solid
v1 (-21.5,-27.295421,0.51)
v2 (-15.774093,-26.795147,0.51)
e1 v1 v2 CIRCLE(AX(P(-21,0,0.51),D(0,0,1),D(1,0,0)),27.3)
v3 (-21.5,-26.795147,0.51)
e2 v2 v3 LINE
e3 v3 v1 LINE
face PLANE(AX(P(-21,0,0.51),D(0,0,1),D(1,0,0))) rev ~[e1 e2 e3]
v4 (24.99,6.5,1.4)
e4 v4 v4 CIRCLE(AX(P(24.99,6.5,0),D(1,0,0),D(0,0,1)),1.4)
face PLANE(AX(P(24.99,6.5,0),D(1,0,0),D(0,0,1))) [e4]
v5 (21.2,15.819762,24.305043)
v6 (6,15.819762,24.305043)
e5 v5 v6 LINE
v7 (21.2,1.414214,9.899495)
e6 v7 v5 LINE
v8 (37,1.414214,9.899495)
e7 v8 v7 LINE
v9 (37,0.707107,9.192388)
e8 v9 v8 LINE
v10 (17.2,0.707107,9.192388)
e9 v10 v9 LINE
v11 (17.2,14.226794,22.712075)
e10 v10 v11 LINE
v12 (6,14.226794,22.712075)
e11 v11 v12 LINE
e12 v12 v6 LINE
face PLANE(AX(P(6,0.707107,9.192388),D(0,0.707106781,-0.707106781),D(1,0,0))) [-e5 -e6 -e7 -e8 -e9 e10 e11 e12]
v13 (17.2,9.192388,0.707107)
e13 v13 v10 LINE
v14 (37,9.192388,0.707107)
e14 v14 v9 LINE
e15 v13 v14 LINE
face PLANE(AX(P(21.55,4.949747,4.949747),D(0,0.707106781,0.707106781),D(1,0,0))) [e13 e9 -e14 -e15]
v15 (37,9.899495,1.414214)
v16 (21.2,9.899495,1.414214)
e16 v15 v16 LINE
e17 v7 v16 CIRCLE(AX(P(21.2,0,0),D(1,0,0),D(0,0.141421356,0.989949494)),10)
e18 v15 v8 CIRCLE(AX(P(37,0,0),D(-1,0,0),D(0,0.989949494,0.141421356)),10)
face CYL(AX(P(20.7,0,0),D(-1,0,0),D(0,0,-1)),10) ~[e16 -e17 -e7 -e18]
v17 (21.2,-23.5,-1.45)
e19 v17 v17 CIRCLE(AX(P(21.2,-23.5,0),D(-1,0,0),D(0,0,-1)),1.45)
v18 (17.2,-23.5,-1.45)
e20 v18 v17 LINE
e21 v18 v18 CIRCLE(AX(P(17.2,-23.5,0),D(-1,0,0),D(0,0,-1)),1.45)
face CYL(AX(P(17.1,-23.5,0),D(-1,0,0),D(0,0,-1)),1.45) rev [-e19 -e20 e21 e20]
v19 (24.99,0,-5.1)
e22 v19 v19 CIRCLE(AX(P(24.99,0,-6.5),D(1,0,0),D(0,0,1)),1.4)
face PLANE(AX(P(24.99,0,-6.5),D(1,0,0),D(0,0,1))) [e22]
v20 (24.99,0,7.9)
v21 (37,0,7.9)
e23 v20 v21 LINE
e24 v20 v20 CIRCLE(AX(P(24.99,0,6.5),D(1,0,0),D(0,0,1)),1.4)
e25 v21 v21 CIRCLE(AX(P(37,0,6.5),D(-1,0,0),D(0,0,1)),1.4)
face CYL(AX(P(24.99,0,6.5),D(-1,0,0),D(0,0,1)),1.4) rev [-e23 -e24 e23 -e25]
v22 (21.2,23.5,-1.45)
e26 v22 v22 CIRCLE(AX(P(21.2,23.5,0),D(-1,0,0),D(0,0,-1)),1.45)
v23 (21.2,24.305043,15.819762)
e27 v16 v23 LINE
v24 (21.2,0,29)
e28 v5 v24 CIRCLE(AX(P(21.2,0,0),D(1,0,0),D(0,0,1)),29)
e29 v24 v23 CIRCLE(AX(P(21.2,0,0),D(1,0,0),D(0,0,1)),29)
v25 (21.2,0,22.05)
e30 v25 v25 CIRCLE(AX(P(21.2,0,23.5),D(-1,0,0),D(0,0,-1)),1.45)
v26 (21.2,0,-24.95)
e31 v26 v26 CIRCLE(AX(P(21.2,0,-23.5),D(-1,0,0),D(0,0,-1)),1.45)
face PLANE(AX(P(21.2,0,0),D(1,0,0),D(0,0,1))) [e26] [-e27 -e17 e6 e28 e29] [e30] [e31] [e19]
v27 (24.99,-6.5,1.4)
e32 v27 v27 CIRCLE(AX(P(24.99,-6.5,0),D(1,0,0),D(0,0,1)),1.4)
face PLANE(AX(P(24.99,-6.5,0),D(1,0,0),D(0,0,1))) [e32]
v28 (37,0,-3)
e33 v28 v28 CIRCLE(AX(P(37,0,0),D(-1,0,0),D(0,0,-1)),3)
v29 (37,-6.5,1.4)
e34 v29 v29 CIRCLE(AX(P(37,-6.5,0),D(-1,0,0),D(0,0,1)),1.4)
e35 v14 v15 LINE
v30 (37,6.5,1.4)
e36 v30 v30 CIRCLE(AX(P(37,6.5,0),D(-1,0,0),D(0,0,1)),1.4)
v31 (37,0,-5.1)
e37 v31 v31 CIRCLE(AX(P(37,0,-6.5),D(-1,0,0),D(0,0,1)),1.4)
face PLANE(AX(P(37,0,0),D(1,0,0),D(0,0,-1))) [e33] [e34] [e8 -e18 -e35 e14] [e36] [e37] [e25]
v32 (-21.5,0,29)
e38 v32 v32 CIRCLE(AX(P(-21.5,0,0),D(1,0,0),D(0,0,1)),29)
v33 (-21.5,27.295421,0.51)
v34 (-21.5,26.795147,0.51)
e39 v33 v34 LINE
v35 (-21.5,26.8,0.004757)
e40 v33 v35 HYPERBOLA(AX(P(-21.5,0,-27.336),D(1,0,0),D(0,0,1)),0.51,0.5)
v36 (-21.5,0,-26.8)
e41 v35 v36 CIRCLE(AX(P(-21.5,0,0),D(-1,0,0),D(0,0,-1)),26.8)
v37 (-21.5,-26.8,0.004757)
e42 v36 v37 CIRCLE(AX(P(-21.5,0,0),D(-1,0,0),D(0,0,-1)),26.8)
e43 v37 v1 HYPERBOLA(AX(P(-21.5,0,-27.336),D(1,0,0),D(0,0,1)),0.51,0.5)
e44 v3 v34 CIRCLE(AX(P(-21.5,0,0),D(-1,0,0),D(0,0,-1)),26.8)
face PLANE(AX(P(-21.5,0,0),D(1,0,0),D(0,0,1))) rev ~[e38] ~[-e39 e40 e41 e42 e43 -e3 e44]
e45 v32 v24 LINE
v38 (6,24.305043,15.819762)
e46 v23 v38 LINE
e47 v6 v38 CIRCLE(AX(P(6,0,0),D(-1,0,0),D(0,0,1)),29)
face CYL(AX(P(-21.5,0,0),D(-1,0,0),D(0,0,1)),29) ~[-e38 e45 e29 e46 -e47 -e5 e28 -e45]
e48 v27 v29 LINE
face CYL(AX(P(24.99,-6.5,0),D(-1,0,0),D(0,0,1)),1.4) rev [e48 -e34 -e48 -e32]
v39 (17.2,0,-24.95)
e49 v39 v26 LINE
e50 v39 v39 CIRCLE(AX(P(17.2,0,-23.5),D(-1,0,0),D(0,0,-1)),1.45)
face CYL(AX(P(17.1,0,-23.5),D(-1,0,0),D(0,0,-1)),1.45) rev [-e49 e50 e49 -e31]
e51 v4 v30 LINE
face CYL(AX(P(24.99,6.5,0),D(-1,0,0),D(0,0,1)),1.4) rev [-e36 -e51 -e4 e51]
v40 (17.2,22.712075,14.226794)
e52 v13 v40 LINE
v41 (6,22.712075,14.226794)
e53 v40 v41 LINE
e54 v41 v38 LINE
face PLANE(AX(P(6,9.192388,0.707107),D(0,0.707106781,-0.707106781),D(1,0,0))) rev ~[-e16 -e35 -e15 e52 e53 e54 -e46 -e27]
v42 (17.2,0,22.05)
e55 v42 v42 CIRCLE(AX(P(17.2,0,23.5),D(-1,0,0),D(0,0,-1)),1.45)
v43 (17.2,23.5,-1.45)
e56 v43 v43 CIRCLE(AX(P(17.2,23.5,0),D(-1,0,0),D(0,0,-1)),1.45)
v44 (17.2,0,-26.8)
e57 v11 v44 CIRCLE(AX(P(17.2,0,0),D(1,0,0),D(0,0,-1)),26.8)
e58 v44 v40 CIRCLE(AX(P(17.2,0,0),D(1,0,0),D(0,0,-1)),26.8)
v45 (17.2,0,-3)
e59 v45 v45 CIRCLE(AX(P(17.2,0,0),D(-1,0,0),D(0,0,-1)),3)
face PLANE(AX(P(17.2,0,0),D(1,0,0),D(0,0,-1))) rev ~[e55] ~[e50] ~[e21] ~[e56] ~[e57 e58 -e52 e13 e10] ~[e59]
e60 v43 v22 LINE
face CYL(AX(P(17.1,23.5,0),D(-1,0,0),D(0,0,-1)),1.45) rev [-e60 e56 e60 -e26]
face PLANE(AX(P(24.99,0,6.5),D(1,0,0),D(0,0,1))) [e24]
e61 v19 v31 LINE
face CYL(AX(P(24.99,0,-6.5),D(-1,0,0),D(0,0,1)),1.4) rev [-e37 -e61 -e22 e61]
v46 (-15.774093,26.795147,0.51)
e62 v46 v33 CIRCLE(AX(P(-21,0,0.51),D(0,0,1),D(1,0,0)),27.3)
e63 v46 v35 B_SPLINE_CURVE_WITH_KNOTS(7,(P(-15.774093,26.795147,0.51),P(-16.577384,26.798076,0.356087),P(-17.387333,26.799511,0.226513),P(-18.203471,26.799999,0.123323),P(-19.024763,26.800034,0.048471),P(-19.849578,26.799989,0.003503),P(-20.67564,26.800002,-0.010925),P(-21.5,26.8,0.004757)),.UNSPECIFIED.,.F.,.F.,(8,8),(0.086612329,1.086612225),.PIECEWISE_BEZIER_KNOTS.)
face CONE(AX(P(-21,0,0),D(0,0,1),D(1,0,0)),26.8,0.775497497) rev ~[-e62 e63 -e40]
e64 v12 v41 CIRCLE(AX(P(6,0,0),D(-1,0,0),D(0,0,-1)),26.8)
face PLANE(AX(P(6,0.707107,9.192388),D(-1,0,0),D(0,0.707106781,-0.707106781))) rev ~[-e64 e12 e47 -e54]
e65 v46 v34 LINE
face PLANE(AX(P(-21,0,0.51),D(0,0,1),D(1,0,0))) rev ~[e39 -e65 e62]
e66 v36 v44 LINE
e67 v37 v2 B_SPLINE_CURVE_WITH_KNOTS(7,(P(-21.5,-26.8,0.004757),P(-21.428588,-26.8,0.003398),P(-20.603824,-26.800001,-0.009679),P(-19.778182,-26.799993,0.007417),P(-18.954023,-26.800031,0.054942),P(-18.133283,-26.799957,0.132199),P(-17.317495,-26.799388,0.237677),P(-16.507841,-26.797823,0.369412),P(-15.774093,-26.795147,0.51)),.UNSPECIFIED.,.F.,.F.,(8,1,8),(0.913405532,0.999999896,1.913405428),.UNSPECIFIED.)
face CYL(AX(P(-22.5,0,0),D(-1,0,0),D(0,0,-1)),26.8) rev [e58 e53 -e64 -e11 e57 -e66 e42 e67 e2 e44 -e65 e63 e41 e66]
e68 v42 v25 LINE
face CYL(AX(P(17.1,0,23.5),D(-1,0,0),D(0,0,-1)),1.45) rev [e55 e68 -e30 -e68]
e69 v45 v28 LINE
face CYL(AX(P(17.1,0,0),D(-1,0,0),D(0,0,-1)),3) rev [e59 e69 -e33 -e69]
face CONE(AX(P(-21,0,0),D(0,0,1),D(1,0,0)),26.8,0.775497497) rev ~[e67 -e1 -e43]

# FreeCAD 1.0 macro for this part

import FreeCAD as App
import Part
import Sketcher

V = App.Vector
Q = App.Units.Quantity

doc = App.newDocument("Part")
body = doc.addObject("PartDesign::Body", "Body")

sketch1 = body.newObject("Sketcher::SketchObject", "Sketch")
sketch1.AttachmentSupport = (doc.getObject("XY_Plane"), [""])
sketch1.MapMode = "FlatFace"
sketch1.addGeometry(Part.Circle(V(0, 0, 0), V(0, 0, 1), 29), False)
sketch1.addConstraint(Sketcher.Constraint("Coincident", 0, 3, -1, 1))
sketch1.addConstraint(Sketcher.Constraint("Diameter", 0, Q("58 mm")))
pad1 = body.newObject("PartDesign::Pad", "Pad")
pad1.Profile = sketch1
pad1.Length = 42.7
body2 = doc.addObject("PartDesign::Body", "Body001")
doc.recompute()

body.Placement = App.Placement(V(0, 0, 0), App.Rotation(V(0, 1, 0), 90))
boolean = body2.newObject("PartDesign::Boolean", "Boolean")
boolean.Type = "Fuse"
boolean.addObjects([body])
body3 = doc.addObject("PartDesign::Body", "Body002")
doc.recompute()

body2.Placement = App.Placement(V(-21.5, 0, 0), App.Rotation(V(0, 0, 1), 0))
boolean2 = body3.newObject("PartDesign::Boolean", "Boolean001")
boolean2.Type = "Fuse"
boolean2.addObjects([body2])
body4 = doc.addObject("PartDesign::Body", "Body003")

sketch2 = body4.newObject("Sketcher::SketchObject", "Sketch001")
sketch2.AttachmentSupport = (doc.getObject("XY_Plane003"), [""])
sketch2.MapMode = "FlatFace"
sketch2.addGeometry(Part.Circle(V(0, 0, 0), V(0, 0, 1), 27), False)
sketch2.addConstraint(Sketcher.Constraint("Coincident", 0, 3, -1, 1))
sketch2.addConstraint(Sketcher.Constraint("Diameter", 0, Q("53.6 mm")))
pad2 = body4.newObject("PartDesign::Pad", "Pad001")
pad2.Profile = sketch2
pad2.Length = 39.7
body5 = doc.addObject("PartDesign::Body", "Body004")
doc.recompute()

body4.Placement = App.Placement(V(0, 0, 0), App.Rotation(V(0, 1, 0), 90))
boolean3 = body5.newObject("PartDesign::Boolean", "Boolean002")
boolean3.Type = "Fuse"
boolean3.addObjects([body4])
body6 = doc.addObject("PartDesign::Body", "Body005")
doc.recompute()

body5.Placement = App.Placement(V(-22.5, 0, 0), App.Rotation(V(0, 0, 1), 0))
boolean4 = body6.newObject("PartDesign::Boolean", "Boolean003")
boolean4.Type = "Fuse"
boolean4.addObjects([body5])
doc.recompute()

boolean5 = body3.newObject("PartDesign::Boolean", "Boolean004")
boolean5.Type = "Cut"
boolean5.addObjects([body6])
body7 = doc.addObject("PartDesign::Body", "Body006")

sketch3 = body7.newObject("Sketcher::SketchObject", "Sketch002")
sketch3.AttachmentSupport = (doc.getObject("XY_Plane006"), [""])
sketch3.MapMode = "FlatFace"
sketch3.addGeometry(Part.Circle(V(0, 0, 0), V(0, 0, 1), 10), False)
sketch3.addConstraint(Sketcher.Constraint("Coincident", 0, 3, -1, 1))
sketch3.addConstraint(Sketcher.Constraint("Diameter", 0, Q("20 mm")))
pad3 = body7.newObject("PartDesign::Pad", "Pad002")
pad3.Profile = sketch3
pad3.Length = 16.3
body8 = doc.addObject("PartDesign::Body", "Body007")
doc.recompute()

body7.Placement = App.Placement(V(0, 0, 0), App.Rotation(V(0, 1, 0), 90))
boolean6 = body8.newObject("PartDesign::Boolean", "Boolean005")
boolean6.Type = "Fuse"
boolean6.addObjects([body7])
body9 = doc.addObject("PartDesign::Body", "Body008")
doc.recompute()

body8.Placement = App.Placement(V(20.7, 0, 0), App.Rotation(V(0, 0, 1), 0))
boolean7 = body9.newObject("PartDesign::Boolean", "Boolean006")
boolean7.Type = "Fuse"
boolean7.addObjects([body8])
doc.recompute()

boolean8 = body3.newObject("PartDesign::Boolean", "Boolean007")
boolean8.Type = "Fuse"
boolean8.addObjects([body9])
body10 = doc.addObject("PartDesign::Body", "Body009")

sketch4 = body10.newObject("Sketcher::SketchObject", "Sketch003")
sketch4.AttachmentSupport = (doc.getObject("XY_Plane009"), [""])
sketch4.MapMode = "FlatFace"
sketch4.addGeometry(Part.Circle(V(0, 0, 0), V(0, 0, 1), 3), False)
sketch4.addConstraint(Sketcher.Constraint("Coincident", 0, 3, -1, 1))
sketch4.addConstraint(Sketcher.Constraint("Diameter", 0, Q("6 mm")))
pad4 = body10.newObject("PartDesign::Pad", "Pad003")
pad4.Profile = sketch4
pad4.Length = 20.9
body11 = doc.addObject("PartDesign::Body", "Body010")
doc.recompute()

body10.Placement = App.Placement(V(0, 0, 0), App.Rotation(V(0, 1, 0), 90))
boolean9 = body11.newObject("PartDesign::Boolean", "Boolean008")
boolean9.Type = "Fuse"
boolean9.addObjects([body10])
body12 = doc.addObject("PartDesign::Body", "Body011")
doc.recompute()

body11.Placement = App.Placement(V(17.1, 0, 0), App.Rotation(V(0, 0, 1), 0))
boolean10 = body12.newObject("PartDesign::Boolean", "Boolean009")
boolean10.Type = "Fuse"
boolean10.addObjects([body11])
doc.recompute()

boolean11 = body3.newObject("PartDesign::Boolean", "Boolean010")
boolean11.Type = "Cut"
boolean11.addObjects([body12])
body13 = doc.addObject("PartDesign::Body", "Body012")

sketch5 = body13.newObject("Sketcher::SketchObject", "Sketch004")
sketch5.AttachmentSupport = (doc.getObject("XY_Plane012"), [""])
sketch5.MapMode = "FlatFace"
sketch5.addGeometry(Part.Circle(V(0, 0, 0), V(0, 0, 1), 1.4), False)
sketch5.addConstraint(Sketcher.Constraint("Coincident", 0, 3, -1, 1))
sketch5.addConstraint(Sketcher.Constraint("Diameter", 0, Q("2.9 mm")))
pad5 = body13.newObject("PartDesign::Pad", "Pad004")
pad5.Profile = sketch5
pad5.Length = 4.2
body14 = doc.addObject("PartDesign::Body", "Body013")
doc.recompute()

body13.Placement = App.Placement(V(0, 0, 0), App.Rotation(V(0, 1, 0), 90))
boolean12 = body14.newObject("PartDesign::Boolean", "Boolean011")
boolean12.Type = "Fuse"
boolean12.addObjects([body13])
body15 = doc.addObject("PartDesign::Body", "Body014")
doc.recompute()

body14.Placement = App.Placement(V(17.1, 23.5, 0), App.Rotation(V(0, 0, 1), 0))
boolean13 = body15.newObject("PartDesign::Boolean", "Boolean012")
boolean13.Type = "Fuse"
boolean13.addObjects([body14])
doc.recompute()

boolean14 = body3.newObject("PartDesign::Boolean", "Boolean013")
boolean14.Type = "Cut"
boolean14.addObjects([body15])
body16 = doc.addObject("PartDesign::Body", "Body015")

sketch6 = body16.newObject("Sketcher::SketchObject", "Sketch005")
sketch6.AttachmentSupport = (doc.getObject("XY_Plane015"), [""])
sketch6.MapMode = "FlatFace"
sketch6.addGeometry(Part.Circle(V(0, 0, 0), V(0, 0, 1), 1.4), False)
sketch6.addConstraint(Sketcher.Constraint("Coincident", 0, 3, -1, 1))
sketch6.addConstraint(Sketcher.Constraint("Diameter", 0, Q("2.9 mm")))
pad6 = body16.newObject("PartDesign::Pad", "Pad005")
pad6.Profile = sketch6
pad6.Length = 4.2
body17 = doc.addObject("PartDesign::Body", "Body016")
doc.recompute()

body16.Placement = App.Placement(V(0, 0, 0), App.Rotation(V(0, 1, 0), 90))
boolean15 = body17.newObject("PartDesign::Boolean", "Boolean014")
boolean15.Type = "Fuse"
boolean15.addObjects([body16])
body18 = doc.addObject("PartDesign::Body", "Body017")
doc.recompute()

body17.Placement = App.Placement(V(17.1, 0, 23.5), App.Rotation(V(0, 0, 1), 0))
boolean16 = body18.newObject("PartDesign::Boolean", "Boolean015")
boolean16.Type = "Fuse"
boolean16.addObjects([body17])
doc.recompute()

boolean17 = body3.newObject("PartDesign::Boolean", "Boolean016")
boolean17.Type = "Cut"
boolean17.addObjects([body18])
body19 = doc.addObject("PartDesign::Body", "Body018")

sketch7 = body19.newObject("Sketcher::SketchObject", "Sketch006")
sketch7.AttachmentSupport = (doc.getObject("XY_Plane018"), [""])
sketch7.MapMode = "FlatFace"
sketch7.addGeometry(Part.Circle(V(0, 0, 0), V(0, 0, 1), 1.4), False)
sketch7.addConstraint(Sketcher.Constraint("Coincident", 0, 3, -1, 1))
sketch7.addConstraint(Sketcher.Constraint("Diameter", 0, Q("2.9 mm")))
pad7 = body19.newObject("PartDesign::Pad", "Pad006")
pad7.Profile = sketch7
pad7.Length = 4.2
body20 = doc.addObject("PartDesign::Body", "Body019")
doc.recompute()

body19.Placement = App.Placement(V(0, 0, 0), App.Rotation(V(0, 1, 0), 90))
boolean18 = body20.newObject("PartDesign::Boolean", "Boolean017")
boolean18.Type = "Fuse"
boolean18.addObjects([body19])
body21 = doc.addObject("PartDesign::Body", "Body020")
doc.recompute()

body20.Placement = App.Placement(V(17.1, -23.5, 0), App.Rotation(V(0, 0, 1), 0))
boolean19 = body21.newObject("PartDesign::Boolean", "Boolean018")
boolean19.Type = "Fuse"
boolean19.addObjects([body20])
doc.recompute()

boolean20 = body3.newObject("PartDesign::Boolean", "Boolean019")
boolean20.Type = "Cut"
boolean20.addObjects([body21])
body22 = doc.addObject("PartDesign::Body", "Body021")

sketch8 = body22.newObject("Sketcher::SketchObject", "Sketch007")
sketch8.AttachmentSupport = (doc.getObject("XY_Plane021"), [""])
sketch8.MapMode = "FlatFace"
sketch8.addGeometry(Part.Circle(V(0, 0, 0), V(0, 0, 1), 1.4), False)
sketch8.addConstraint(Sketcher.Constraint("Coincident", 0, 3, -1, 1))
sketch8.addConstraint(Sketcher.Constraint("Diameter", 0, Q("2.9 mm")))
pad8 = body22.newObject("PartDesign::Pad", "Pad007")
pad8.Profile = sketch8
pad8.Length = 4.2
body23 = doc.addObject("PartDesign::Body", "Body022")
doc.recompute()

body22.Placement = App.Placement(V(0, 0, 0), App.Rotation(V(0, 1, 0), 90))
boolean21 = body23.newObject("PartDesign::Boolean", "Boolean020")
boolean21.Type = "Fuse"
boolean21.addObjects([body22])
body24 = doc.addObject("PartDesign::Body", "Body023")
doc.recompute()

body23.Placement = App.Placement(V(17.1, 0, -23.5), App.Rotation(V(0, 0, 1), 0))
boolean22 = body24.newObject("PartDesign::Boolean", "Boolean021")
boolean22.Type = "Fuse"
boolean22.addObjects([body23])
doc.recompute()

boolean23 = body3.newObject("PartDesign::Boolean", "Boolean022")
boolean23.Type = "Cut"
boolean23.addObjects([body24])
body25 = doc.addObject("PartDesign::Body", "Body024")

sketch9 = body25.newObject("Sketcher::SketchObject", "Sketch008")
sketch9.AttachmentSupport = (doc.getObject("XY_Plane024"), [""])
sketch9.MapMode = "FlatFace"
sketch9.addGeometry(Part.LineSegment(V(0, 12, 0), V(0, 0, 0)), False)
sketch9.addGeometry(Part.LineSegment(V(0, 0, 0), V(31, 0, 0)), False)
sketch9.addGeometry(Part.LineSegment(V(31, 0, 0), V(31, 12, 0)), False)
sketch9.addGeometry(Part.LineSegment(V(31, 12, 0), V(0, 12, 0)), False)
sketch9.addConstraint(Sketcher.Constraint("Coincident", 0, 2, 1, 1))
sketch9.addConstraint(Sketcher.Constraint("Coincident", 1, 2, 2, 1))
sketch9.addConstraint(Sketcher.Constraint("Coincident", 2, 2, 3, 1))
sketch9.addConstraint(Sketcher.Constraint("Coincident", 3, 2, 0, 1))
sketch9.addConstraint(Sketcher.Constraint("Vertical", 0))
sketch9.addConstraint(Sketcher.Constraint("Horizontal", 1))
sketch9.addConstraint(Sketcher.Constraint("Vertical", 2))
sketch9.addConstraint(Sketcher.Constraint("Horizontal", 3))
sketch9.addConstraint(Sketcher.Constraint("Coincident", 0, 2, -1, 1))
sketch9.addConstraint(Sketcher.Constraint("DistanceY", 0, 2, 0, 1, Q("12 mm")))
sketch9.addConstraint(Sketcher.Constraint("DistanceX", 1, 1, 1, 2, Q("31.1 mm")))
pad9 = body25.newObject("PartDesign::Pad", "Pad008")
pad9.Profile = sketch9
pad9.Length = 28
body26 = doc.addObject("PartDesign::Body", "Body025")
doc.recompute()

body25.Placement = App.Placement(V(0, 0, 0), App.Rotation(V(-1, 0, 0), 45))
boolean24 = body26.newObject("PartDesign::Boolean", "Boolean023")
boolean24.Type = "Fuse"
boolean24.addObjects([body25])
body27 = doc.addObject("PartDesign::Body", "Body026")
doc.recompute()

body26.Placement = App.Placement(V(6, 0.707107, 9.192388), App.Rotation(V(0, 0, 1), 0))
boolean25 = body27.newObject("PartDesign::Boolean", "Boolean024")
boolean25.Type = "Fuse"
boolean25.addObjects([body26])
doc.recompute()

boolean26 = body3.newObject("PartDesign::Boolean", "Boolean025")
boolean26.Type = "Cut"
boolean26.addObjects([body27])
body28 = doc.addObject("PartDesign::Body", "Body027")

sketch10 = body28.newObject("Sketcher::SketchObject", "Sketch009")
sketch10.AttachmentSupport = (doc.getObject("XY_Plane027"), [""])
sketch10.MapMode = "FlatFace"
sketch10.addGeometry(Part.Circle(V(0, 0, 0), V(0, 0, 1), 1.4), False)
sketch10.addConstraint(Sketcher.Constraint("Coincident", 0, 3, -1, 1))
sketch10.addConstraint(Sketcher.Constraint("Diameter", 0, Q("2.8 mm")))
pad10 = body28.newObject("PartDesign::Pad", "Pad009")
pad10.Profile = sketch10
pad10.Length = 12.02
body29 = doc.addObject("PartDesign::Body", "Body028")
doc.recompute()

body28.Placement = App.Placement(V(0, 0, 0), App.Rotation(V(0, 1, 0), 90))
boolean27 = body29.newObject("PartDesign::Boolean", "Boolean026")
boolean27.Type = "Fuse"
boolean27.addObjects([body28])
body30 = doc.addObject("PartDesign::Body", "Body029")
doc.recompute()

body29.Placement = App.Placement(V(24.99, 6.5, 0), App.Rotation(V(0, 0, 1), 0))
boolean28 = body30.newObject("PartDesign::Boolean", "Boolean027")
boolean28.Type = "Fuse"
boolean28.addObjects([body29])
doc.recompute()

boolean29 = body3.newObject("PartDesign::Boolean", "Boolean028")
boolean29.Type = "Cut"
boolean29.addObjects([body30])
body31 = doc.addObject("PartDesign::Body", "Body030")

sketch11 = body31.newObject("Sketcher::SketchObject", "Sketch010")
sketch11.AttachmentSupport = (doc.getObject("XY_Plane030"), [""])
sketch11.MapMode = "FlatFace"
sketch11.addGeometry(Part.Circle(V(0, 0, 0), V(0, 0, 1), 1.4), False)
sketch11.addConstraint(Sketcher.Constraint("Coincident", 0, 3, -1, 1))
sketch11.addConstraint(Sketcher.Constraint("Diameter", 0, Q("2.8 mm")))
pad11 = body31.newObject("PartDesign::Pad", "Pad010")
pad11.Profile = sketch11
pad11.Length = 12.02
body32 = doc.addObject("PartDesign::Body", "Body031")
doc.recompute()

body31.Placement = App.Placement(V(0, 0, 0), App.Rotation(V(0, 1, 0), 90))
boolean30 = body32.newObject("PartDesign::Boolean", "Boolean029")
boolean30.Type = "Fuse"
boolean30.addObjects([body31])
body33 = doc.addObject("PartDesign::Body", "Body032")
doc.recompute()

body32.Placement = App.Placement(V(24.99, 0, 6.5), App.Rotation(V(0, 0, 1), 0))
boolean31 = body33.newObject("PartDesign::Boolean", "Boolean030")
boolean31.Type = "Fuse"
boolean31.addObjects([body32])
doc.recompute()

boolean32 = body3.newObject("PartDesign::Boolean", "Boolean031")
boolean32.Type = "Cut"
boolean32.addObjects([body33])
body34 = doc.addObject("PartDesign::Body", "Body033")

sketch12 = body34.newObject("Sketcher::SketchObject", "Sketch011")
sketch12.AttachmentSupport = (doc.getObject("XY_Plane033"), [""])
sketch12.MapMode = "FlatFace"
sketch12.addGeometry(Part.Circle(V(0, 0, 0), V(0, 0, 1), 1.4), False)
sketch12.addConstraint(Sketcher.Constraint("Coincident", 0, 3, -1, 1))
sketch12.addConstraint(Sketcher.Constraint("Diameter", 0, Q("2.8 mm")))
pad12 = body34.newObject("PartDesign::Pad", "Pad011")
pad12.Profile = sketch12
pad12.Length = 12.02
body35 = doc.addObject("PartDesign::Body", "Body034")
doc.recompute()

body34.Placement = App.Placement(V(0, 0, 0), App.Rotation(V(0, 1, 0), 90))
boolean33 = body35.newObject("PartDesign::Boolean", "Boolean032")
boolean33.Type = "Fuse"
boolean33.addObjects([body34])
body36 = doc.addObject("PartDesign::Body", "Body035")
doc.recompute()

body35.Placement = App.Placement(V(24.99, -6.5, 0), App.Rotation(V(0, 0, 1), 0))
boolean34 = body36.newObject("PartDesign::Boolean", "Boolean033")
boolean34.Type = "Fuse"
boolean34.addObjects([body35])
doc.recompute()

boolean35 = body3.newObject("PartDesign::Boolean", "Boolean034")
boolean35.Type = "Cut"
boolean35.addObjects([body36])
body37 = doc.addObject("PartDesign::Body", "Body036")

sketch13 = body37.newObject("Sketcher::SketchObject", "Sketch012")
sketch13.AttachmentSupport = (doc.getObject("XY_Plane036"), [""])
sketch13.MapMode = "FlatFace"
sketch13.addGeometry(Part.Circle(V(0, 0, 0), V(0, 0, 1), 1.4), False)
sketch13.addConstraint(Sketcher.Constraint("Coincident", 0, 3, -1, 1))
sketch13.addConstraint(Sketcher.Constraint("Diameter", 0, Q("2.8 mm")))
pad13 = body37.newObject("PartDesign::Pad", "Pad012")
pad13.Profile = sketch13
pad13.Length = 12.02
body38 = doc.addObject("PartDesign::Body", "Body037")
doc.recompute()

body37.Placement = App.Placement(V(0, 0, 0), App.Rotation(V(0, 1, 0), 90))
boolean36 = body38.newObject("PartDesign::Boolean", "Boolean035")
boolean36.Type = "Fuse"
boolean36.addObjects([body37])
body39 = doc.addObject("PartDesign::Body", "Body038")
doc.recompute()

body38.Placement = App.Placement(V(24.99, 0, -6.5), App.Rotation(V(0, 0, 1), 0))
boolean37 = body39.newObject("PartDesign::Boolean", "Boolean036")
boolean37.Type = "Fuse"
boolean37.addObjects([body38])
doc.recompute()

boolean38 = body3.newObject("PartDesign::Boolean", "Boolean037")
boolean38.Type = "Cut"
boolean38.addObjects([body39])
body40 = doc.addObject("PartDesign::Body", "Body039")

sketch14 = body40.newObject("Sketcher::SketchObject", "Sketch013")
sketch14.AttachmentSupport = (doc.getObject("XY_Plane039"), [""])
sketch14.MapMode = "FlatFace"
sketch14.addGeometry(Part.LineSegment(V(0, 0, 0), V(26.8, 0, 0)), False)
sketch14.addGeometry(Part.LineSegment(V(26.8, 0, 0), V(27.3, 0.5, 0)), False)
sketch14.addGeometry(Part.LineSegment(V(27.3, 0.5, 0), V(0, 0.5, 0)), False)
sketch14.addGeometry(Part.LineSegment(V(0, 0.5, 0), V(0, 0, 0)), False)
sketch14.addConstraint(Sketcher.Constraint("Coincident", 0, 2, 1, 1))
sketch14.addConstraint(Sketcher.Constraint("Coincident", 1, 2, 2, 1))
sketch14.addConstraint(Sketcher.Constraint("Coincident", 2, 2, 3, 1))
sketch14.addConstraint(Sketcher.Constraint("Coincident", 3, 2, 0, 1))
sketch14.addConstraint(Sketcher.Constraint("Horizontal", 0))
sketch14.addConstraint(Sketcher.Constraint("Horizontal", 2))
sketch14.addConstraint(Sketcher.Constraint("Vertical", 3))
sketch14.addConstraint(Sketcher.Constraint("Coincident", 3, 2, -1, 1))
sketch14.addConstraint(Sketcher.Constraint("DistanceX", 0, 1, 0, 2, Q("26.8 mm")))
sketch14.addConstraint(Sketcher.Constraint("DistanceX", 2, 2, 2, 1, Q("27.3 mm")))
sketch14.addConstraint(Sketcher.Constraint("DistanceY", 3, 2, 3, 1, Q("0.51 mm")))
revolution = body40.newObject("PartDesign::Revolution", "Revolution")
revolution.Profile = sketch14
revolution.ReferenceAxis = (sketch14, ["V_Axis"])
revolution.Angle = 360
body41 = doc.addObject("PartDesign::Body", "Body040")
doc.recompute()

body40.Placement = App.Placement(V(0, 0, 0), App.Rotation(V(0.577350269, -0.577350269, -0.577350269), 120))
boolean39 = body41.newObject("PartDesign::Boolean", "Boolean038")
boolean39.Type = "Fuse"
boolean39.addObjects([body40])
body42 = doc.addObject("PartDesign::Body", "Body041")
doc.recompute()

body41.Placement = App.Placement(V(-21, 0, 0), App.Rotation(V(0, 0, 1), 0))
boolean40 = body42.newObject("PartDesign::Boolean", "Boolean039")
boolean40.Type = "Fuse"
boolean40.addObjects([body41])
doc.recompute()

boolean41 = body3.newObject("PartDesign::Boolean", "Boolean040")
boolean41.Type = "Cut"
boolean41.addObjects([body42])

doc.recompute()
